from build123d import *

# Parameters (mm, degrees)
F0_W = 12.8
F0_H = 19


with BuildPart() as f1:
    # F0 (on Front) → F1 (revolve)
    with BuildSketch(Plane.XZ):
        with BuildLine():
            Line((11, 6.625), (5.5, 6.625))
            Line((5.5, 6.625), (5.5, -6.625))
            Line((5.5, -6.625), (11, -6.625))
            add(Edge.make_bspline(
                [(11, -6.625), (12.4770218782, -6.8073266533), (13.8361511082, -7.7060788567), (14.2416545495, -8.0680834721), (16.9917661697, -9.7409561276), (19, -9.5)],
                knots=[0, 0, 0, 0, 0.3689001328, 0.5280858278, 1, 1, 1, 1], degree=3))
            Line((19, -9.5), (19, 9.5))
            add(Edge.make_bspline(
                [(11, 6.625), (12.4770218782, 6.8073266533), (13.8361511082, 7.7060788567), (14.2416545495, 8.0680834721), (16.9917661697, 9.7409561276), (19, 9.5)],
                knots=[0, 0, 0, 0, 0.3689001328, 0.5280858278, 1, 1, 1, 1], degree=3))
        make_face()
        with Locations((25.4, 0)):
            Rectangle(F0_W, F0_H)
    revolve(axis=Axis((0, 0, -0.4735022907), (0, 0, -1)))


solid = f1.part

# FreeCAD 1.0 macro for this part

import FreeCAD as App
import Part
import Sketcher

V = App.Vector

doc = App.newDocument("Part")
body = doc.addObject("PartDesign::Body", "Body")

# Sketch on XZ plane
sketch1 = body.newObject("Sketcher::SketchObject", "Sketch")
sketch1.AttachmentSupport = (doc.getObject("XZ_Plane"), [""])
sketch1.MapMode = "FlatFace"
sketch1.addGeometry([
    Part.LineSegment(V(11, 6.625, 0), V(5.5, 6.625, 0)),  # 0
    Part.LineSegment(V(5.5, 6.625, 0), V(5.5, -6.625, 0)),  # 1
    Part.LineSegment(V(5.5, -6.625, 0), V(11, -6.625, 0)),  # 2
    Part.BSplineCurve([V(11, -6.625, 0), V(12.477022, -6.807327, 0), V(13.836151, -7.706079, 0), V(14.241655, -8.068083, 0), V(16.991766, -9.740956, 0), V(19, -9.5, 0)], [4, 1, 1, 4], [0, 0.368900133, 0.528085828, 1], False, 3, [1, 1, 1, 1, 1, 1], False),  # 3
    Part.LineSegment(V(19, -9.5, 0), V(31.8, -9.5, 0)),  # 4
    Part.LineSegment(V(31.8, -9.5, 0), V(31.8, 9.5, 0)),  # 5
    Part.LineSegment(V(31.8, 9.5, 0), V(19, 9.5, 0)),  # 6
    Part.BSplineCurve([V(11, 6.625, 0), V(12.477022, 6.807327, 0), V(13.836151, 7.706079, 0), V(14.241655, 8.068083, 0), V(16.991766, 9.740956, 0), V(19, 9.5, 0)], [4, 1, 1, 4], [0, 0.368900133, 0.528085828, 1], False, 3, [1, 1, 1, 1, 1, 1], False),  # 7
], False)
sketch1.addConstraint([
    Sketcher.Constraint("Block", 3),
    Sketcher.Constraint("Block", 7),
    Sketcher.Constraint("Coincident", 0, 2, 1, 1),
    Sketcher.Constraint("Coincident", 1, 2, 2, 1),
    Sketcher.Constraint("Coincident", 2, 2, 3, 1),
    Sketcher.Constraint("Coincident", 3, 2, 4, 1),
    Sketcher.Constraint("Coincident", 4, 2, 5, 1),
    Sketcher.Constraint("Coincident", 5, 2, 6, 1),
    Sketcher.Constraint("Coincident", 6, 2, 7, 2),
    Sketcher.Constraint("Coincident", 7, 1, 0, 1),
    Sketcher.Constraint("Horizontal", 0),
    Sketcher.Constraint("Vertical", 1),
    Sketcher.Constraint("Horizontal", 2),
    Sketcher.Constraint("Horizontal", 4),
    Sketcher.Constraint("Vertical", 5),
    Sketcher.Constraint("Horizontal", 6),
    Sketcher.Constraint("DistanceX", 0, 2, 0, 1, 5.5),
    Sketcher.Constraint("DistanceX", 4, 1, 4, 2, 12.8),
])
revolution = body.newObject("PartDesign::Revolution", "Revolution")
revolution.Profile = sketch1
revolution.ReferenceAxis = (sketch1, ["V_Axis"])
revolution.Angle = 360

doc.recompute()
